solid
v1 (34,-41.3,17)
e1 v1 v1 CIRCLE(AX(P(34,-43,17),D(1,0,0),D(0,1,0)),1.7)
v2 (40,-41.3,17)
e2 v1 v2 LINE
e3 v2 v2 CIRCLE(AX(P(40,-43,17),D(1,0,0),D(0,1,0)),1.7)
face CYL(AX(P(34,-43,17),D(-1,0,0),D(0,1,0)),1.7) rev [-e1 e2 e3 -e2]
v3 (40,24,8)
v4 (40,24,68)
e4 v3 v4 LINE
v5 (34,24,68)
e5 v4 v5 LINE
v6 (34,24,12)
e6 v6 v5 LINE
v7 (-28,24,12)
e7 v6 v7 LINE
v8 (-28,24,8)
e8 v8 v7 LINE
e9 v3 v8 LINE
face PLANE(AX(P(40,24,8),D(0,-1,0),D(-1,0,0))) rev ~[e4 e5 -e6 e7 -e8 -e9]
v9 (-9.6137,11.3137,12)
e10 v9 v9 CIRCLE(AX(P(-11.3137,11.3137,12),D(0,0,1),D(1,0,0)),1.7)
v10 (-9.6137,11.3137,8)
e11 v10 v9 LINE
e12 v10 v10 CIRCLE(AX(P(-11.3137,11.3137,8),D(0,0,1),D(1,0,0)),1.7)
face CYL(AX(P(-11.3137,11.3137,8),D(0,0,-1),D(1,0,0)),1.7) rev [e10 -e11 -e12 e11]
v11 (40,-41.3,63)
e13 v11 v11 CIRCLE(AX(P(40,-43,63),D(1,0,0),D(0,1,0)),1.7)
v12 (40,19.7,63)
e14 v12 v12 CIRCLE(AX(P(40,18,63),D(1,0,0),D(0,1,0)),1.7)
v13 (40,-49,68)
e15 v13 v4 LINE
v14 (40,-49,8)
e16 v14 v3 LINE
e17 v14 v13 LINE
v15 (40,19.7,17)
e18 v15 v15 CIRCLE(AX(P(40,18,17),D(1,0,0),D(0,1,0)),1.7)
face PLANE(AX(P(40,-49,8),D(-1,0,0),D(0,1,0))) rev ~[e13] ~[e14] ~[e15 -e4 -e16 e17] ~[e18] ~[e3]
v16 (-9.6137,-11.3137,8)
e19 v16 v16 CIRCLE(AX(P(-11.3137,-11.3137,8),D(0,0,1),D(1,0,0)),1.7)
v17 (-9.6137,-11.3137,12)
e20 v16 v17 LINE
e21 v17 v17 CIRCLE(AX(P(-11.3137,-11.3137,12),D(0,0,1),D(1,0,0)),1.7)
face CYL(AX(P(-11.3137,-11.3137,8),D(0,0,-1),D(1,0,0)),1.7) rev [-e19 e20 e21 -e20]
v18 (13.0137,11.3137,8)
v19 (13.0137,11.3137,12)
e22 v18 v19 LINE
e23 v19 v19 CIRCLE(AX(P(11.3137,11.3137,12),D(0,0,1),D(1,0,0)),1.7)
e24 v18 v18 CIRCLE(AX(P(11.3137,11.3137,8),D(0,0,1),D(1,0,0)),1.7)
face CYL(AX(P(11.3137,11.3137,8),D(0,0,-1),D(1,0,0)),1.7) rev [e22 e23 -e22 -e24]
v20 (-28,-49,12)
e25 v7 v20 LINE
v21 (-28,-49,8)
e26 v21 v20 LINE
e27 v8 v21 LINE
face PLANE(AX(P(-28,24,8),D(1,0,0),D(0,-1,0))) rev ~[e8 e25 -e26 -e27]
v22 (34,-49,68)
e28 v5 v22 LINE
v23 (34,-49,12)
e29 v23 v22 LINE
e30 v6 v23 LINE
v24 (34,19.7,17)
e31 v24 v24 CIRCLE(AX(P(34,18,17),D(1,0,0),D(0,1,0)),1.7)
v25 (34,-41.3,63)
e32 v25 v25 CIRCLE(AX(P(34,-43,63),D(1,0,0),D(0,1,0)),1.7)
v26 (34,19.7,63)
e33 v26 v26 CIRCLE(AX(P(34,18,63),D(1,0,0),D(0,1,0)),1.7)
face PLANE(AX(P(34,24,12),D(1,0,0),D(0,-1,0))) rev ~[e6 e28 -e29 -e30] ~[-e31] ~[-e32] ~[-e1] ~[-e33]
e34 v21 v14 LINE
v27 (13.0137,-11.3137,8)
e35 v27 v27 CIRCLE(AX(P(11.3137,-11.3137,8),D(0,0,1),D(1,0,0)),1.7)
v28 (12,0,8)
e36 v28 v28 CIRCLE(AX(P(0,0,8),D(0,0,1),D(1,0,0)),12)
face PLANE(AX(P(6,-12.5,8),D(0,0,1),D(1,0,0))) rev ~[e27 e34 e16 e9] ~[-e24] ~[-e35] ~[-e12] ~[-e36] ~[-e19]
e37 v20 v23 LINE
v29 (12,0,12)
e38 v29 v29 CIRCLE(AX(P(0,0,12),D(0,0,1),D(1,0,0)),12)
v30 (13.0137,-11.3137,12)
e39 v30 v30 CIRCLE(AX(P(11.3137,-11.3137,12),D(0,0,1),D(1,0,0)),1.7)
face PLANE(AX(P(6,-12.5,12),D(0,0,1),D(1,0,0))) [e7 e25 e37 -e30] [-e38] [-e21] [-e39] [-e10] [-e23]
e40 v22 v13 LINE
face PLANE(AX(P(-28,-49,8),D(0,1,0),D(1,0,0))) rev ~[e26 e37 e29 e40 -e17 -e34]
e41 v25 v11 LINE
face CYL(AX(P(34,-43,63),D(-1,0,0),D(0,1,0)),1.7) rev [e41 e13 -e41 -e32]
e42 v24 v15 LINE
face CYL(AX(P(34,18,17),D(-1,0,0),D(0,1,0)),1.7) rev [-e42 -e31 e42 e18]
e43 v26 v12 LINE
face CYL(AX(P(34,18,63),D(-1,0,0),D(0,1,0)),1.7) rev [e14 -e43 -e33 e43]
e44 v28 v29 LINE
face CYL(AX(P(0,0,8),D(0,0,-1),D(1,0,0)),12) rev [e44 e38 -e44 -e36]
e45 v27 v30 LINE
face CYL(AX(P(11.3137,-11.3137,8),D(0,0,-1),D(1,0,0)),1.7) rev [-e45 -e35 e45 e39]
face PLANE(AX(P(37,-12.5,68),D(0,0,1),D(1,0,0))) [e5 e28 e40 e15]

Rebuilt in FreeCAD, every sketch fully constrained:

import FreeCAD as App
import Part
import Sketcher
from FreeCAD import Vector

doc = App.newDocument("Part")
body = doc.addObject("PartDesign::Body", "Body")

# Sketch on XY plane
sketch1 = body.newObject("Sketcher::SketchObject", "Sketch")
sketch1.AttachmentSupport = (doc.getObject("XY_Plane"), [""])
sketch1.MapMode = "FlatFace"
sketch1.AttachmentOffset = App.Placement(Vector(0, 0, 8), App.Rotation())
sketch1.addGeometry([
    Part.LineSegment(Vector(-28, 24, 0), Vector(-28, -49, 0)),  # 0
    Part.LineSegment(Vector(-28, -49, 0), Vector(40, -49, 0)),  # 1
    Part.LineSegment(Vector(40, -49, 0), Vector(40, 24, 0)),  # 2
    Part.LineSegment(Vector(40, 24, 0), Vector(-28, 24, 0)),  # 3
    Part.Circle(Vector(-11.3137, -11.3137, 0), Vector(0, 0, 1), 1.7),  # 4
    Part.Circle(Vector(0, 0, 0), Vector(0, 0, 1), 12),  # 5
    Part.Circle(Vector(-11.3137, 11.3137, 0), Vector(0, 0, 1), 1.7),  # 6
    Part.Circle(Vector(11.3137, -11.3137, 0), Vector(0, 0, 1), 1.7),  # 7
    Part.Circle(Vector(11.3137, 11.3137, 0), Vector(0, 0, 1), 1.7),  # 8
], False)
sketch1.addConstraint([
    Sketcher.Constraint("Coincident", 0, 2, 1, 1),
    Sketcher.Constraint("Coincident", 1, 2, 2, 1),
    Sketcher.Constraint("Coincident", 2, 2, 3, 1),
    Sketcher.Constraint("Coincident", 3, 2, 0, 1),
    Sketcher.Constraint("Vertical", 0),
    Sketcher.Constraint("Horizontal", 1),
    Sketcher.Constraint("Vertical", 2),
    Sketcher.Constraint("Horizontal", 3),
    Sketcher.Constraint("Coincident", 5, 3, -1, 1),
    Sketcher.Constraint("Equal", 4, 6),
    Sketcher.Constraint("Equal", 6, 7),
    Sketcher.Constraint("Equal", 7, 8),
    Sketcher.Constraint("Symmetric", 6, 3, 7, 3, -1, 1),
    Sketcher.Constraint("Symmetric", 4, 3, 8, 3, -1, 1),
    Sketcher.Constraint("Symmetric", 4, 3, 7, 3, -2),
    Sketcher.Constraint("Diameter", 5, 24.0),
    Sketcher.Constraint("Diameter", 4, 3.4),
    Sketcher.Constraint("DistanceX", 1, 1, 1, 2, 68.0),
    Sketcher.Constraint("DistanceY", 0, 2, 0, 1, 73.0),
    Sketcher.Constraint("DistanceX", 0, 2, -1, 1, 28.0),
    Sketcher.Constraint("DistanceY", 0, 2, -1, 1, 49.0),
    Sketcher.Constraint("DistanceX", 4, 3, -1, 1, 11.3137),
    Sketcher.Constraint("DistanceY", 4, 3, -1, 1, 11.3137),
])
pad1 = body.newObject("PartDesign::Pad", "Pad")
pad1.Profile = sketch1
pad1.Length = 4

# Sketch on XY plane
sketch2 = body.newObject("Sketcher::SketchObject", "Sketch001")
sketch2.AttachmentSupport = (doc.getObject("XY_Plane"), [""])
sketch2.MapMode = "FlatFace"
sketch2.AttachmentOffset = App.Placement(Vector(0, 0, 12), App.Rotation())
sketch2.addGeometry([
    Part.LineSegment(Vector(34, 24, 0), Vector(34, -49, 0)),
    Part.LineSegment(Vector(34, -49, 0), Vector(40, -49, 0)),
    Part.LineSegment(Vector(40, -49, 0), Vector(40, 24, 0)),
    Part.LineSegment(Vector(40, 24, 0), Vector(34, 24, 0)),
], False)
sketch2.addConstraint([
    Sketcher.Constraint("Coincident", 0, 2, 1, 1),
    Sketcher.Constraint("Coincident", 1, 2, 2, 1),
    Sketcher.Constraint("Coincident", 2, 2, 3, 1),
    Sketcher.Constraint("Coincident", 3, 2, 0, 1),
    Sketcher.Constraint("Vertical", 0),
    Sketcher.Constraint("Horizontal", 1),
    Sketcher.Constraint("Vertical", 2),
    Sketcher.Constraint("Horizontal", 3),
    Sketcher.Constraint("DistanceX", 1, 1, 1, 2, 6.0),
    Sketcher.Constraint("DistanceY", 0, 2, 0, 1, 73.0),
    Sketcher.Constraint("DistanceX", -1, 1, 0, 2, 34.0),
    Sketcher.Constraint("DistanceY", 0, 2, -1, 1, 49.0),
])
pad2 = body.newObject("PartDesign::Pad", "Pad001")
pad2.Profile = sketch2
pad2.Length = 56

# Sketch on YZ plane
sketch3 = body.newObject("Sketcher::SketchObject", "Sketch002")
sketch3.AttachmentSupport = (doc.getObject("YZ_Plane"), [""])
sketch3.MapMode = "FlatFace"
sketch3.AttachmentOffset = App.Placement(Vector(0, 0, 34), App.Rotation())
sketch3.addGeometry([
    Part.Circle(Vector(-43, 63, 0), Vector(0, 0, 1), 1.7),
    Part.Circle(Vector(-43, 17, 0), Vector(0, 0, 1), 1.7),
    Part.Circle(Vector(18, 63, 0), Vector(0, 0, 1), 1.7),
    Part.Circle(Vector(18, 17, 0), Vector(0, 0, 1), 1.7),
], False)
sketch3.addConstraint([
    Sketcher.Constraint("Equal", 0, 1),
    Sketcher.Constraint("Equal", 1, 2),
    Sketcher.Constraint("Equal", 2, 3),
    Sketcher.Constraint("Horizontal", 0, 3, 2, 3),
    Sketcher.Constraint("Horizontal", 1, 3, 3, 3),
    Sketcher.Constraint("Vertical", 0, 3, 1, 3),
    Sketcher.Constraint("Vertical", 2, 3, 3, 3),
    Sketcher.Constraint("Diameter", 0, 3.4),
    Sketcher.Constraint("DistanceX", 0, 3, -1, 1, 43.0),
    Sketcher.Constraint("DistanceY", -1, 1, 0, 3, 63.0),
    Sketcher.Constraint("DistanceY", -1, 1, 1, 3, 17.0),
    Sketcher.Constraint("DistanceX", -1, 1, 2, 3, 18.0),
])
pocket1 = body.newObject("PartDesign::Pocket", "Pocket")
pocket1.Profile = sketch3
pocket1.Length = 6
pocket1.Reversed = True

doc.recompute()
